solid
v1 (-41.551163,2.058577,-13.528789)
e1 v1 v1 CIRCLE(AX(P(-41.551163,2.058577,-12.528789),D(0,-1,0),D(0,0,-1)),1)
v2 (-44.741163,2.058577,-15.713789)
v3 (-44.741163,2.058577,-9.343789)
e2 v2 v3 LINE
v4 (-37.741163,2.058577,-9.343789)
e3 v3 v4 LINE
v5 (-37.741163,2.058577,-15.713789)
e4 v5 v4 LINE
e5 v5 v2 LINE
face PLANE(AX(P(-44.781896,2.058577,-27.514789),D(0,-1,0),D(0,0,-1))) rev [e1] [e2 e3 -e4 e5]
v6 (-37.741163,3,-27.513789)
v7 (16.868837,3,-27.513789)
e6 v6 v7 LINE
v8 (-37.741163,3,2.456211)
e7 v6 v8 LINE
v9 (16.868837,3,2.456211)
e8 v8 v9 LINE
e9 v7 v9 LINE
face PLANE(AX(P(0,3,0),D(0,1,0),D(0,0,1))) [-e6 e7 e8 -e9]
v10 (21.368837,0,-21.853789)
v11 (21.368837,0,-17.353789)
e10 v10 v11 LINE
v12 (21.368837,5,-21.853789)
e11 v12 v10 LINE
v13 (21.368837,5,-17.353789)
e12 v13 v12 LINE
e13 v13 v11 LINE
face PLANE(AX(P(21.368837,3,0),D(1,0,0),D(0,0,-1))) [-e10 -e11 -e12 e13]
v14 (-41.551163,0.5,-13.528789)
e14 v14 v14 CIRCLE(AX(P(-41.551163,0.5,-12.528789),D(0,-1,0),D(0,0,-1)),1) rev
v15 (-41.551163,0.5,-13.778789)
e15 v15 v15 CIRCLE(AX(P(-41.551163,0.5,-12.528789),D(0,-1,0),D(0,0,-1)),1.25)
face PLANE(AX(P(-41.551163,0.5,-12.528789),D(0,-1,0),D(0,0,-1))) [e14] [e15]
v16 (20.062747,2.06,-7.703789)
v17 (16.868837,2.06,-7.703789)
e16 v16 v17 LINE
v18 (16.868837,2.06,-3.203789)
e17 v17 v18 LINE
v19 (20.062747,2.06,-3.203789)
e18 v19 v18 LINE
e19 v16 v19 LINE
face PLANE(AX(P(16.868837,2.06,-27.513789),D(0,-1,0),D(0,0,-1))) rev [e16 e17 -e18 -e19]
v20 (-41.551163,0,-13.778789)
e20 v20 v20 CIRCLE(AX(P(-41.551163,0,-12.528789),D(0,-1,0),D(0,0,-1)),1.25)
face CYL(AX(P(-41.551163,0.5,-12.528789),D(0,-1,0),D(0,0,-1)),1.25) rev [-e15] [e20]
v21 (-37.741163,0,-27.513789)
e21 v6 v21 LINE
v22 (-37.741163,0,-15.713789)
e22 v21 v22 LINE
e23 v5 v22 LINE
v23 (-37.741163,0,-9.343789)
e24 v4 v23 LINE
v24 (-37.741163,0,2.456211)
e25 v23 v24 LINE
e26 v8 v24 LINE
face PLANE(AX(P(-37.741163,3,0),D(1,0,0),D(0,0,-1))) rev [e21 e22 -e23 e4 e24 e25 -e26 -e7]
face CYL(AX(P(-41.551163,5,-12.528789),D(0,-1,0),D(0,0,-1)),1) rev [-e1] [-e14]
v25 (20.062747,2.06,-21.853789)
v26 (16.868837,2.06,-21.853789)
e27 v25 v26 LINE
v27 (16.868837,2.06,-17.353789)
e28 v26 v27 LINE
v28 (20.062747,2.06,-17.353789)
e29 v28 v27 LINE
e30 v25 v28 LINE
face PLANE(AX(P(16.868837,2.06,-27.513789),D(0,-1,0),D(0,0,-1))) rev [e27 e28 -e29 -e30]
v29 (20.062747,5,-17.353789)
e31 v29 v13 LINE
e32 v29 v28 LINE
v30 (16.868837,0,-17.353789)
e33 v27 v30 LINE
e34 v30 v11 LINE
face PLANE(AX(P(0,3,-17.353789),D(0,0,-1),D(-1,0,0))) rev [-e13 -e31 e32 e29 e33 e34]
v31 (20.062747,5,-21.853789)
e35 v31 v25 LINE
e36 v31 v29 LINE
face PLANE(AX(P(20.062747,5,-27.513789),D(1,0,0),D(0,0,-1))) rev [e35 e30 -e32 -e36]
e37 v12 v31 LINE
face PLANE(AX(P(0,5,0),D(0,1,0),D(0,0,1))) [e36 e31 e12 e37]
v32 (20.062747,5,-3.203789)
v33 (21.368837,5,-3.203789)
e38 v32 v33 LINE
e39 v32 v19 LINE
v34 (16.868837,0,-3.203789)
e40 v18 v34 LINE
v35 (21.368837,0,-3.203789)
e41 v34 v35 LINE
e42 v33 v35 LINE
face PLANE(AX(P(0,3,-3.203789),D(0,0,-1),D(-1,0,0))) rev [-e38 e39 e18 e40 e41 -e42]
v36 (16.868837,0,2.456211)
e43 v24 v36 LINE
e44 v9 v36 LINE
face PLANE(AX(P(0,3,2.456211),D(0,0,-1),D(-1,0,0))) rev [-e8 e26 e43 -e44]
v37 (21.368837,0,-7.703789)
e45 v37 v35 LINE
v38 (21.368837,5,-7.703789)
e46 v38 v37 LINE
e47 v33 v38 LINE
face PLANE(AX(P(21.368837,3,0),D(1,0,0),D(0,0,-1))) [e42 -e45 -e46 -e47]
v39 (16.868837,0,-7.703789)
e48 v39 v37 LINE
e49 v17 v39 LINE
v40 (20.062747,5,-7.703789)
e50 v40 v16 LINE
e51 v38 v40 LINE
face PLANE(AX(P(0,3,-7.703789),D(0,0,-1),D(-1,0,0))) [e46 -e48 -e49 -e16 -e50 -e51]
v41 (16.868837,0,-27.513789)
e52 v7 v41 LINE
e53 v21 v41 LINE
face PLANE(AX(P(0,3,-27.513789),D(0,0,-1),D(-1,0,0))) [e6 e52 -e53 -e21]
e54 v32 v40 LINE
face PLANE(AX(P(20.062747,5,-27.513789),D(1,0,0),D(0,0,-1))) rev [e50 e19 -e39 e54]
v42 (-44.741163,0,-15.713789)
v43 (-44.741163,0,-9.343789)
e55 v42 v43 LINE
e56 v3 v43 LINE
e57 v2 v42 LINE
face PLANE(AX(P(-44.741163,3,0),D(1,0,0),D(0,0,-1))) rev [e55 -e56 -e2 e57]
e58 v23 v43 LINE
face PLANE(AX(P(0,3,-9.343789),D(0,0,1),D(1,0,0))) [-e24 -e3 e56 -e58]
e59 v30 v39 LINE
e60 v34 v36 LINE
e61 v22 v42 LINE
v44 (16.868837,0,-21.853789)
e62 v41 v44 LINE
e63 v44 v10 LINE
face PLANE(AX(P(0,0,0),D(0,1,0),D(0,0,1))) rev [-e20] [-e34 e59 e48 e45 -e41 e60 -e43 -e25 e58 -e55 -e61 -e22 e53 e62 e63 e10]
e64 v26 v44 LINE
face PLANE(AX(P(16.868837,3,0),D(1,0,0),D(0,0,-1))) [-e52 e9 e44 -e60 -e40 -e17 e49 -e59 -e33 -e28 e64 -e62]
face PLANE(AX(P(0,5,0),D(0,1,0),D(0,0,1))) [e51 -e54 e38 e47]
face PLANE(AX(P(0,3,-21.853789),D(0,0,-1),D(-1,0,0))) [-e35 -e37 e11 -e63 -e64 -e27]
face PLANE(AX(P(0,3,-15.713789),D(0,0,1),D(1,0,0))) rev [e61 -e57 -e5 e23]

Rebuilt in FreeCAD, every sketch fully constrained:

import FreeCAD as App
import Part
import Sketcher
Q = App.Units.Quantity

doc = App.newDocument("Part")
body = doc.addObject("PartDesign::Body", "Body")

sketch1 = body.newObject("Sketcher::SketchObject", "Sketch")
sketch1.AttachmentSupport = (doc.getObject("XZ_Plane"), [""])
sketch1.MapMode = "FlatFace"
sketch1.addGeometry(Part.LineSegment(App.Vector(-37.7, -9.3, 0), App.Vector(-37.7, 2.5, 0)), False)
sketch1.addGeometry(Part.LineSegment(App.Vector(-37.7, 2.5, 0), App.Vector(16.9, 2.5, 0)), False)
sketch1.addGeometry(Part.LineSegment(App.Vector(16.9, 2.5, 0), App.Vector(16.9, -3.2, 0)), False)
sketch1.addGeometry(Part.LineSegment(App.Vector(16.9, -3.2, 0), App.Vector(21.4, -3.2, 0)), False)
sketch1.addGeometry(Part.LineSegment(App.Vector(21.4, -3.2, 0), App.Vector(21.4, -7.7, 0)), False)
sketch1.addGeometry(Part.LineSegment(App.Vector(21.4, -7.7, 0), App.Vector(16.9, -7.7, 0)), False)
sketch1.addGeometry(Part.LineSegment(App.Vector(16.9, -7.7, 0), App.Vector(16.9, -17.4, 0)), False)
sketch1.addGeometry(Part.LineSegment(App.Vector(16.9, -17.4, 0), App.Vector(21.4, -17.4, 0)), False)
sketch1.addGeometry(Part.LineSegment(App.Vector(21.4, -17.4, 0), App.Vector(21.4, -21.9, 0)), False)
sketch1.addGeometry(Part.LineSegment(App.Vector(21.4, -21.9, 0), App.Vector(16.9, -21.9, 0)), False)
sketch1.addGeometry(Part.LineSegment(App.Vector(16.9, -21.9, 0), App.Vector(16.9, -27.5, 0)), False)
sketch1.addGeometry(Part.LineSegment(App.Vector(16.9, -27.5, 0), App.Vector(-37.7, -27.5, 0)), False)
sketch1.addGeometry(Part.LineSegment(App.Vector(-37.7, -27.5, 0), App.Vector(-37.7, -15.7, 0)), False)
sketch1.addGeometry(Part.LineSegment(App.Vector(-37.7, -15.7, 0), App.Vector(-44.7, -15.7, 0)), False)
sketch1.addGeometry(Part.LineSegment(App.Vector(-44.7, -15.7, 0), App.Vector(-44.7, -9.3, 0)), False)
sketch1.addGeometry(Part.LineSegment(App.Vector(-44.7, -9.3, 0), App.Vector(-37.7, -9.3, 0)), False)
sketch1.addConstraint(Sketcher.Constraint("Coincident", 0, 2, 1, 1))
sketch1.addConstraint(Sketcher.Constraint("Coincident", 1, 2, 2, 1))
sketch1.addConstraint(Sketcher.Constraint("Coincident", 2, 2, 3, 1))
sketch1.addConstraint(Sketcher.Constraint("Coincident", 3, 2, 4, 1))
sketch1.addConstraint(Sketcher.Constraint("Coincident", 4, 2, 5, 1))
sketch1.addConstraint(Sketcher.Constraint("Coincident", 5, 2, 6, 1))
sketch1.addConstraint(Sketcher.Constraint("Coincident", 6, 2, 7, 1))
sketch1.addConstraint(Sketcher.Constraint("Coincident", 7, 2, 8, 1))
sketch1.addConstraint(Sketcher.Constraint("Coincident", 8, 2, 9, 1))
sketch1.addConstraint(Sketcher.Constraint("Coincident", 9, 2, 10, 1))
sketch1.addConstraint(Sketcher.Constraint("Coincident", 10, 2, 11, 1))
sketch1.addConstraint(Sketcher.Constraint("Coincident", 11, 2, 12, 1))
sketch1.addConstraint(Sketcher.Constraint("Coincident", 12, 2, 13, 1))
sketch1.addConstraint(Sketcher.Constraint("Coincident", 13, 2, 14, 1))
sketch1.addConstraint(Sketcher.Constraint("Coincident", 14, 2, 15, 1))
sketch1.addConstraint(Sketcher.Constraint("Coincident", 15, 2, 0, 1))
sketch1.addConstraint(Sketcher.Constraint("Vertical", 0))
sketch1.addConstraint(Sketcher.Constraint("Horizontal", 1))
sketch1.addConstraint(Sketcher.Constraint("Vertical", 2))
sketch1.addConstraint(Sketcher.Constraint("Horizontal", 3))
sketch1.addConstraint(Sketcher.Constraint("Vertical", 4))
sketch1.addConstraint(Sketcher.Constraint("Horizontal", 5))
sketch1.addConstraint(Sketcher.Constraint("Vertical", 6))
sketch1.addConstraint(Sketcher.Constraint("Horizontal", 7))
sketch1.addConstraint(Sketcher.Constraint("Vertical", 8))
sketch1.addConstraint(Sketcher.Constraint("Horizontal", 9))
sketch1.addConstraint(Sketcher.Constraint("Vertical", 10))
sketch1.addConstraint(Sketcher.Constraint("Horizontal", 11))
sketch1.addConstraint(Sketcher.Constraint("Vertical", 12))
sketch1.addConstraint(Sketcher.Constraint("Horizontal", 13))
sketch1.addConstraint(Sketcher.Constraint("Vertical", 14))
sketch1.addConstraint(Sketcher.Constraint("Horizontal", 15))
sketch1.addConstraint(Sketcher.Constraint("Vertical", 2, 2, 5, 2))
sketch1.addConstraint(Sketcher.Constraint("Vertical", 4, 2, 7, 2))
sketch1.addConstraint(Sketcher.Constraint("Vertical", 6, 2, 9, 2))
sketch1.addConstraint(Sketcher.Constraint("Vertical", 0, 2, 11, 2))
sketch1.addConstraint(Sketcher.Constraint("Equal", 9, 4))
sketch1.addConstraint(Sketcher.Constraint("Equal", 4, 8))
sketch1.addConstraint(Sketcher.Constraint("Equal", 2, 10))
sketch1.addConstraint(Sketcher.Constraint("Equal", 0, 12))
sketch1.addConstraint(Sketcher.Constraint("DistanceX", 13, 2, 13, 1, Q("7 mm")))
sketch1.addConstraint(Sketcher.Constraint("DistanceX", 3, 1, 3, 2, Q("4.5 mm")))
sketch1.addConstraint(Sketcher.Constraint("DistanceY", 0, 1, 0, 2, Q("11.8 mm")))
sketch1.addConstraint(Sketcher.Constraint("DistanceX", 1, 1, 1, 2, Q("54.61 mm")))
sketch1.addConstraint(Sketcher.Constraint("DistanceY", 2, 2, 2, 1, Q("5.66 mm")))
sketch1.addConstraint(Sketcher.Constraint("DistanceY", 6, 2, 6, 1, Q("9.65 mm")))
sketch1.addConstraint(Sketcher.Constraint("DistanceY", -1, 1, 0, 2, Q("2.456211 mm")))
sketch1.addConstraint(Sketcher.Constraint("DistanceX", 0, 2, -1, 1, Q("37.741163 mm")))
pad1 = body.newObject("PartDesign::Pad", "Pad")
pad1.Profile = sketch1
pad1.Length = 3
pad1.Reversed = True

sketch2 = body.newObject("Sketcher::SketchObject", "Sketch001")
sketch2.AttachmentSupport = (doc.getObject("XZ_Plane"), [""])
sketch2.MapMode = "FlatFace"
sketch2.AttachmentOffset = App.Placement(App.Vector(0, 0, -3), App.Rotation())
sketch2.addGeometry(Part.LineSegment(App.Vector(-45, -16, 0), App.Vector(-45, -9, 0)), False)
sketch2.addGeometry(Part.LineSegment(App.Vector(-45, -9, 0), App.Vector(-38, -9, 0)), False)
sketch2.addGeometry(Part.LineSegment(App.Vector(-38, -9, 0), App.Vector(-38, -16, 0)), False)
sketch2.addGeometry(Part.LineSegment(App.Vector(-38, -16, 0), App.Vector(-45, -16, 0)), False)
sketch2.addConstraint(Sketcher.Constraint("Coincident", 0, 2, 1, 1))
sketch2.addConstraint(Sketcher.Constraint("Coincident", 1, 2, 2, 1))
sketch2.addConstraint(Sketcher.Constraint("Coincident", 2, 2, 3, 1))
sketch2.addConstraint(Sketcher.Constraint("Coincident", 3, 2, 0, 1))
sketch2.addConstraint(Sketcher.Constraint("Vertical", 0))
sketch2.addConstraint(Sketcher.Constraint("Horizontal", 1))
sketch2.addConstraint(Sketcher.Constraint("Vertical", 2))
sketch2.addConstraint(Sketcher.Constraint("Horizontal", 3))
sketch2.addConstraint(Sketcher.Constraint("DistanceX", 1, 1, 1, 2, Q("7 mm")))
sketch2.addConstraint(Sketcher.Constraint("DistanceY", 0, 1, 0, 2, Q("6.37 mm")))
sketch2.addConstraint(Sketcher.Constraint("DistanceY", 0, 2, -1, 1, Q("9.343789 mm")))
sketch2.addConstraint(Sketcher.Constraint("DistanceX", 0, 2, -1, 1, Q("44.741163 mm")))
pad2 = body.newObject("PartDesign::Pad", "Pad001")
pad2.Profile = sketch2
pad2.Length = 3
pad2.Reversed = True

sketch3 = body.newObject("Sketcher::SketchObject", "Sketch002")
sketch3.AttachmentSupport = (doc.getObject("XZ_Plane"), [""])
sketch3.MapMode = "FlatFace"
sketch3.AttachmentOffset = App.Placement(App.Vector(0, 0, -3), App.Rotation())
sketch3.addGeometry(Part.LineSegment(App.Vector(16.9, -21.9, 0), App.Vector(16.9, -17.4, 0)), False)
sketch3.addGeometry(Part.LineSegment(App.Vector(16.9, -17.4, 0), App.Vector(21.4, -17.4, 0)), False)
sketch3.addGeometry(Part.LineSegment(App.Vector(21.4, -17.4, 0), App.Vector(21.4, -21.9, 0)), False)
sketch3.addGeometry(Part.LineSegment(App.Vector(21.4, -21.9, 0), App.Vector(16.9, -21.9, 0)), False)
sketch3.addGeometry(Part.LineSegment(App.Vector(16.9, -7.7, 0), App.Vector(16.9, -3.2, 0)), False)
sketch3.addGeometry(Part.LineSegment(App.Vector(16.9, -3.2, 0), App.Vector(21.4, -3.2, 0)), False)
sketch3.addGeometry(Part.LineSegment(App.Vector(21.4, -3.2, 0), App.Vector(21.4, -7.7, 0)), False)
sketch3.addGeometry(Part.LineSegment(App.Vector(21.4, -7.7, 0), App.Vector(16.9, -7.7, 0)), False)
sketch3.addConstraint(Sketcher.Constraint("Coincident", 0, 2, 1, 1))
sketch3.addConstraint(Sketcher.Constraint("Coincident", 1, 2, 2, 1))
sketch3.addConstraint(Sketcher.Constraint("Coincident", 2, 2, 3, 1))
sketch3.addConstraint(Sketcher.Constraint("Coincident", 3, 2, 0, 1))
sketch3.addConstraint(Sketcher.Constraint("Coincident", 4, 2, 5, 1))
sketch3.addConstraint(Sketcher.Constraint("Coincident", 5, 2, 6, 1))
sketch3.addConstraint(Sketcher.Constraint("Coincident", 6, 2, 7, 1))
sketch3.addConstraint(Sketcher.Constraint("Coincident", 7, 2, 4, 1))
sketch3.addConstraint(Sketcher.Constraint("Vertical", 0))
sketch3.addConstraint(Sketcher.Constraint("Horizontal", 1))
sketch3.addConstraint(Sketcher.Constraint("Vertical", 2))
sketch3.addConstraint(Sketcher.Constraint("Horizontal", 3))
sketch3.addConstraint(Sketcher.Constraint("Vertical", 4))
sketch3.addConstraint(Sketcher.Constraint("Horizontal", 5))
sketch3.addConstraint(Sketcher.Constraint("Vertical", 6))
sketch3.addConstraint(Sketcher.Constraint("Horizontal", 7))
sketch3.addConstraint(Sketcher.Constraint("Vertical", 3, 2, 4, 2))
sketch3.addConstraint(Sketcher.Constraint("Vertical", 2, 2, 5, 2))
sketch3.addConstraint(Sketcher.Constraint("Equal", 7, 0))
sketch3.addConstraint(Sketcher.Constraint("Equal", 2, 4))
sketch3.addConstraint(Sketcher.Constraint("DistanceX", 1, 1, 1, 2, Q("4.5 mm")))
sketch3.addConstraint(Sketcher.Constraint("DistanceY", 0, 2, 4, 2, Q("14.15 mm")))
sketch3.addConstraint(Sketcher.Constraint("DistanceY", 0, 2, -1, 1, Q("17.353789 mm")))
sketch3.addConstraint(Sketcher.Constraint("DistanceX", -1, 1, 0, 2, Q("16.868837 mm")))
pad3 = body.newObject("PartDesign::Pad", "Pad002")
pad3.Profile = sketch3
pad3.Length = 2
pad3.Reversed = True

sketch4 = body.newObject("Sketcher::SketchObject", "Sketch003")
sketch4.AttachmentSupport = (doc.getObject("XY_Plane"), [""])
sketch4.MapMode = "FlatFace"
sketch4.AttachmentOffset = App.Placement(App.Vector(0, 0, -3.203789), App.Rotation())
sketch4.addGeometry(Part.LineSegment(App.Vector(16.9, 5, 0), App.Vector(16.9, 2.1, 0)), False)
sketch4.addGeometry(Part.LineSegment(App.Vector(16.9, 2.1, 0), App.Vector(20.1, 2.1, 0)), False)
sketch4.addGeometry(Part.LineSegment(App.Vector(20.1, 2.1, 0), App.Vector(20.1, 5, 0)), False)
sketch4.addGeometry(Part.LineSegment(App.Vector(20.1, 5, 0), App.Vector(16.9, 5, 0)), False)
sketch4.addConstraint(Sketcher.Constraint("Coincident", 0, 2, 1, 1))
sketch4.addConstraint(Sketcher.Constraint("Coincident", 1, 2, 2, 1))
sketch4.addConstraint(Sketcher.Constraint("Coincident", 2, 2, 3, 1))
sketch4.addConstraint(Sketcher.Constraint("Coincident", 3, 2, 0, 1))
sketch4.addConstraint(Sketcher.Constraint("Vertical", 0))
sketch4.addConstraint(Sketcher.Constraint("Horizontal", 1))
sketch4.addConstraint(Sketcher.Constraint("Vertical", 2))
sketch4.addConstraint(Sketcher.Constraint("Horizontal", 3))
sketch4.addConstraint(Sketcher.Constraint("DistanceY", -1, 1, 2, 2, Q("5 mm")))
sketch4.addConstraint(Sketcher.Constraint("DistanceY", 0, 2, 0, 1, Q("2.94 mm")))
sketch4.addConstraint(Sketcher.Constraint("DistanceX", 1, 1, 1, 2, Q("3.19391 mm")))
sketch4.addConstraint(Sketcher.Constraint("DistanceX", -1, 1, 0, 2, Q("16.868837 mm")))
pocket1 = body.newObject("PartDesign::Pocket", "Pocket")
pocket1.Profile = sketch4
pocket1.Type = "ThroughAll"
pocket1.Midplane = True

sketch5 = body.newObject("Sketcher::SketchObject", "Sketch004")
sketch5.AttachmentSupport = (doc.getObject("XY_Plane"), [""])
sketch5.MapMode = "FlatFace"
sketch5.AttachmentOffset = App.Placement(App.Vector(0, 0, -9.343789), App.Rotation())
sketch5.addGeometry(Part.LineSegment(App.Vector(-37.741163, 6, 0), App.Vector(-42.018009, 6, 0)), False)
sketch5.addGeometry(Part.LineSegment(App.Vector(-42.018009, 6, 0), App.Vector(-42.018009, 6.012511, 0)), False)
sketch5.addGeometry(Part.LineSegment(App.Vector(-42.018009, 6.012511, 0), App.Vector(-43.247603, 6.012511, 0)), False)
sketch5.addGeometry(Part.LineSegment(App.Vector(-43.247603, 6.012511, 0), App.Vector(-43.247603, 6.015262, 0)), False)
sketch5.addGeometry(Part.LineSegment(App.Vector(-43.247603, 6.015262, 0), App.Vector(-44.781896, 6.015262, 0)), False)
sketch5.addGeometry(Part.LineSegment(App.Vector(-44.781896, 6.015262, 0), App.Vector(-44.781896, 2.058577, 0)), False)
sketch5.addGeometry(Part.LineSegment(App.Vector(-44.781896, 2.058577, 0), App.Vector(-37.741163, 2.058577, 0)), False)
sketch5.addGeometry(Part.LineSegment(App.Vector(-37.741163, 2.058577, 0), App.Vector(-37.741163, 6, 0)), False)
sketch5.addConstraint(Sketcher.Constraint("Coincident", 0, 2, 1, 1))
sketch5.addConstraint(Sketcher.Constraint("Coincident", 1, 2, 2, 1))
sketch5.addConstraint(Sketcher.Constraint("Coincident", 2, 2, 3, 1))
sketch5.addConstraint(Sketcher.Constraint("Coincident", 3, 2, 4, 1))
sketch5.addConstraint(Sketcher.Constraint("Coincident", 4, 2, 5, 1))
sketch5.addConstraint(Sketcher.Constraint("Coincident", 5, 2, 6, 1))
sketch5.addConstraint(Sketcher.Constraint("Coincident", 6, 2, 7, 1))
sketch5.addConstraint(Sketcher.Constraint("Coincident", 7, 2, 0, 1))
sketch5.addConstraint(Sketcher.Constraint("Horizontal", 0))
sketch5.addConstraint(Sketcher.Constraint("Vertical", 1))
sketch5.addConstraint(Sketcher.Constraint("Horizontal", 2))
sketch5.addConstraint(Sketcher.Constraint("Vertical", 3))
sketch5.addConstraint(Sketcher.Constraint("Horizontal", 4))
sketch5.addConstraint(Sketcher.Constraint("Vertical", 5))
sketch5.addConstraint(Sketcher.Constraint("Horizontal", 6))
sketch5.addConstraint(Sketcher.Constraint("Vertical", 7))
sketch5.addConstraint(Sketcher.Constraint("DistanceY", -1, 1, 0, 2, Q("6 mm")))
sketch5.addConstraint(Sketcher.Constraint("DistanceY", 1, 1, 1, 2, Q("0.012511 mm")))
sketch5.addConstraint(Sketcher.Constraint("DistanceY", 3, 1, 3, 2, Q("0.002751 mm")))
sketch5.addConstraint(Sketcher.Constraint("DistanceX", 0, 2, 0, 1, Q("4.276847 mm")))
sketch5.addConstraint(Sketcher.Constraint("DistanceX", 2, 2, 2, 1, Q("1.229594 mm")))
sketch5.addConstraint(Sketcher.Constraint("DistanceX", 4, 2, 4, 1, Q("1.534293 mm")))
sketch5.addConstraint(Sketcher.Constraint("DistanceY", 5, 2, 5, 1, Q("3.956685 mm")))
sketch5.addConstraint(Sketcher.Constraint("DistanceX", 0, 2, -1, 1, Q("42.018009 mm")))
pocket2 = body.newObject("PartDesign::Pocket", "Pocket001")
pocket2.Profile = sketch5
pocket2.Type = "UpToFirst"

sketch6 = body.newObject("Sketcher::SketchObject", "Sketch005")
sketch6.AttachmentSupport = (doc.getObject("XZ_Plane"), [""])
sketch6.MapMode = "FlatFace"
sketch6.addGeometry(Part.Circle(App.Vector(-41.6, -12.5, 0), App.Vector(0, 0, 1), 1), False)
sketch6.addConstraint(Sketcher.Constraint("Diameter", 0, Q("2 mm")))
sketch6.addConstraint(Sketcher.Constraint("DistanceY", 0, 3, -1, 1, Q("12.528789 mm")))
sketch6.addConstraint(Sketcher.Constraint("DistanceX", 0, 3, -1, 1, Q("41.551163 mm")))
pocket3 = body.newObject("PartDesign::Pocket", "Pocket002")
pocket3.Profile = sketch6
pocket3.Length = 5

sketch7 = body.newObject("Sketcher::SketchObject", "Sketch006")
sketch7.AttachmentSupport = (doc.getObject("XZ_Plane"), [""])
sketch7.MapMode = "FlatFace"
sketch7.addGeometry(Part.Circle(App.Vector(-41.6, -12.5, 0), App.Vector(0, 0, 1), 1.2), False)
sketch7.addConstraint(Sketcher.Constraint("Diameter", 0, Q("2.5 mm")))
sketch7.addConstraint(Sketcher.Constraint("DistanceY", 0, 3, -1, 1, Q("12.528789 mm")))
sketch7.addConstraint(Sketcher.Constraint("DistanceX", 0, 3, -1, 1, Q("41.551163 mm")))
pocket4 = body.newObject("PartDesign::Pocket", "Pocket003")
pocket4.Profile = sketch7
pocket4.Length = 0.5

doc.recompute()
